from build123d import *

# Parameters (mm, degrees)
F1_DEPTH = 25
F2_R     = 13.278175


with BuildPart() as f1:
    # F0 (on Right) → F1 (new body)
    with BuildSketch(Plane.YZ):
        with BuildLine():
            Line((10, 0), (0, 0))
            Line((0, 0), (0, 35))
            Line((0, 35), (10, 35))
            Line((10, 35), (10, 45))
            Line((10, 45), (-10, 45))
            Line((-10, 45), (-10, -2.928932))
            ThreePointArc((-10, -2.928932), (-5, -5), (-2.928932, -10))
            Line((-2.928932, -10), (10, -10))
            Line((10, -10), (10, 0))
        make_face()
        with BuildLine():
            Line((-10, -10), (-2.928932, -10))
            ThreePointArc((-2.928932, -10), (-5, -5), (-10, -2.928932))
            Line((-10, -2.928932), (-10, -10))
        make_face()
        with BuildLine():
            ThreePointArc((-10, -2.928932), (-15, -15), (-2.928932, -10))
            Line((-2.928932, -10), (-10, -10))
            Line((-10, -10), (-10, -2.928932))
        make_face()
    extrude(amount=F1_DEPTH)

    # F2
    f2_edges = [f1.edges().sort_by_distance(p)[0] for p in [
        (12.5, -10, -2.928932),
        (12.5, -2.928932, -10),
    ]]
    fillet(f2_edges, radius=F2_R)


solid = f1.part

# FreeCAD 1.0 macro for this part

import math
import FreeCAD as App
import Part
import Sketcher
Q = App.Units.Quantity


def edges_at(feature, points):
    """Names of the edges that pass closest to the given points."""
    edges = feature.Shape.Edges
    near = lambda p: min(range(len(edges)), key=lambda i: edges[i].distToShape(Part.Vertex(*p))[0])
    return sorted({f"Edge{near(p) + 1}" for p in points})

doc = App.newDocument("Part")
body = doc.addObject("PartDesign::Body", "Body")

sketch1 = doc.addObject("Sketcher::SketchObject", "Sketch")
body.addObject(sketch1)
sketch1.AttachmentSupport = (doc.YZ_Plane, [""])
sketch1.MapMode = "FlatFace"
sketch1.addGeometry([
    Part.LineSegment(App.Vector(10, 0, 0), App.Vector(0, 0, 0)),
    Part.LineSegment(App.Vector(0, 0, 0), App.Vector(0, 35, 0)),
    Part.LineSegment(App.Vector(0, 35, 0), App.Vector(10, 35, 0)),
    Part.LineSegment(App.Vector(10, 35, 0), App.Vector(10, 45, 0)),
    Part.LineSegment(App.Vector(10, 45, 0), App.Vector(-10, 45, 0)),
    Part.LineSegment(App.Vector(-10, 45, 0), App.Vector(-10, -3, 0)),
    Part.ArcOfCircle(Part.Circle(App.Vector(-10, -10, 0), App.Vector(0, 0, 1), 7), math.radians(90), math.radians(360)),
    Part.LineSegment(App.Vector(-3, -10, 0), App.Vector(10, -10, 0)),
    Part.LineSegment(App.Vector(10, -10, 0), App.Vector(10, 0, 0)),
], False)
sketch1.addConstraint([
    Sketcher.Constraint("Coincident", 0, 2, 1, 1),
    Sketcher.Constraint("Coincident", 1, 2, 2, 1),
    Sketcher.Constraint("Coincident", 2, 2, 3, 1),
    Sketcher.Constraint("Coincident", 3, 2, 4, 1),
    Sketcher.Constraint("Coincident", 4, 2, 5, 1),
    Sketcher.Constraint("Coincident", 5, 2, 6, 1),
    Sketcher.Constraint("Coincident", 6, 2, 7, 1),
    Sketcher.Constraint("Coincident", 7, 2, 8, 1),
    Sketcher.Constraint("Coincident", 8, 2, 0, 1),
    Sketcher.Constraint("Horizontal", 0),
    Sketcher.Constraint("Vertical", 1),
    Sketcher.Constraint("Horizontal", 2),
    Sketcher.Constraint("Vertical", 3),
    Sketcher.Constraint("Horizontal", 4),
    Sketcher.Constraint("Vertical", 5),
    Sketcher.Constraint("Horizontal", 7),
    Sketcher.Constraint("Vertical", 8),
    Sketcher.Constraint("Coincident", 0, 2, -1, 1),
    Sketcher.Constraint("Vertical", 6, 3, 4, 2),
    Sketcher.Constraint("Vertical", 3, 2, 7, 2),
    Sketcher.Constraint("Equal", 2, 3),
    Sketcher.Constraint("Equal", 3, 8),
    Sketcher.Constraint("DistanceX", 0, 2, 0, 1, Q("10 mm")),
    Sketcher.Constraint("DistanceX", 4, 2, 4, 1, Q("20 mm")),
    Sketcher.Constraint("DistanceY", 1, 1, 1, 2, Q("35 mm")),
    Sketcher.Constraint("DistanceY", 6, 3, -1, 1, Q("10 mm")),
    Sketcher.Constraint("Radius", 6, Q("7.071068 mm")),
])
pad1 = doc.addObject("PartDesign::Pad", "Pad")
body.addObject(pad1)
pad1.Profile = sketch1
pad1.Length = 25
doc.recompute()

fillet = doc.addObject("PartDesign::Fillet", "Fillet")
body.addObject(fillet)
fillet.Base = (pad1, edges_at(pad1, [(12.5, -10, -2.929), (12.5, -2.929, -10)]))
fillet.Radius = 13.278175

doc.recompute()
